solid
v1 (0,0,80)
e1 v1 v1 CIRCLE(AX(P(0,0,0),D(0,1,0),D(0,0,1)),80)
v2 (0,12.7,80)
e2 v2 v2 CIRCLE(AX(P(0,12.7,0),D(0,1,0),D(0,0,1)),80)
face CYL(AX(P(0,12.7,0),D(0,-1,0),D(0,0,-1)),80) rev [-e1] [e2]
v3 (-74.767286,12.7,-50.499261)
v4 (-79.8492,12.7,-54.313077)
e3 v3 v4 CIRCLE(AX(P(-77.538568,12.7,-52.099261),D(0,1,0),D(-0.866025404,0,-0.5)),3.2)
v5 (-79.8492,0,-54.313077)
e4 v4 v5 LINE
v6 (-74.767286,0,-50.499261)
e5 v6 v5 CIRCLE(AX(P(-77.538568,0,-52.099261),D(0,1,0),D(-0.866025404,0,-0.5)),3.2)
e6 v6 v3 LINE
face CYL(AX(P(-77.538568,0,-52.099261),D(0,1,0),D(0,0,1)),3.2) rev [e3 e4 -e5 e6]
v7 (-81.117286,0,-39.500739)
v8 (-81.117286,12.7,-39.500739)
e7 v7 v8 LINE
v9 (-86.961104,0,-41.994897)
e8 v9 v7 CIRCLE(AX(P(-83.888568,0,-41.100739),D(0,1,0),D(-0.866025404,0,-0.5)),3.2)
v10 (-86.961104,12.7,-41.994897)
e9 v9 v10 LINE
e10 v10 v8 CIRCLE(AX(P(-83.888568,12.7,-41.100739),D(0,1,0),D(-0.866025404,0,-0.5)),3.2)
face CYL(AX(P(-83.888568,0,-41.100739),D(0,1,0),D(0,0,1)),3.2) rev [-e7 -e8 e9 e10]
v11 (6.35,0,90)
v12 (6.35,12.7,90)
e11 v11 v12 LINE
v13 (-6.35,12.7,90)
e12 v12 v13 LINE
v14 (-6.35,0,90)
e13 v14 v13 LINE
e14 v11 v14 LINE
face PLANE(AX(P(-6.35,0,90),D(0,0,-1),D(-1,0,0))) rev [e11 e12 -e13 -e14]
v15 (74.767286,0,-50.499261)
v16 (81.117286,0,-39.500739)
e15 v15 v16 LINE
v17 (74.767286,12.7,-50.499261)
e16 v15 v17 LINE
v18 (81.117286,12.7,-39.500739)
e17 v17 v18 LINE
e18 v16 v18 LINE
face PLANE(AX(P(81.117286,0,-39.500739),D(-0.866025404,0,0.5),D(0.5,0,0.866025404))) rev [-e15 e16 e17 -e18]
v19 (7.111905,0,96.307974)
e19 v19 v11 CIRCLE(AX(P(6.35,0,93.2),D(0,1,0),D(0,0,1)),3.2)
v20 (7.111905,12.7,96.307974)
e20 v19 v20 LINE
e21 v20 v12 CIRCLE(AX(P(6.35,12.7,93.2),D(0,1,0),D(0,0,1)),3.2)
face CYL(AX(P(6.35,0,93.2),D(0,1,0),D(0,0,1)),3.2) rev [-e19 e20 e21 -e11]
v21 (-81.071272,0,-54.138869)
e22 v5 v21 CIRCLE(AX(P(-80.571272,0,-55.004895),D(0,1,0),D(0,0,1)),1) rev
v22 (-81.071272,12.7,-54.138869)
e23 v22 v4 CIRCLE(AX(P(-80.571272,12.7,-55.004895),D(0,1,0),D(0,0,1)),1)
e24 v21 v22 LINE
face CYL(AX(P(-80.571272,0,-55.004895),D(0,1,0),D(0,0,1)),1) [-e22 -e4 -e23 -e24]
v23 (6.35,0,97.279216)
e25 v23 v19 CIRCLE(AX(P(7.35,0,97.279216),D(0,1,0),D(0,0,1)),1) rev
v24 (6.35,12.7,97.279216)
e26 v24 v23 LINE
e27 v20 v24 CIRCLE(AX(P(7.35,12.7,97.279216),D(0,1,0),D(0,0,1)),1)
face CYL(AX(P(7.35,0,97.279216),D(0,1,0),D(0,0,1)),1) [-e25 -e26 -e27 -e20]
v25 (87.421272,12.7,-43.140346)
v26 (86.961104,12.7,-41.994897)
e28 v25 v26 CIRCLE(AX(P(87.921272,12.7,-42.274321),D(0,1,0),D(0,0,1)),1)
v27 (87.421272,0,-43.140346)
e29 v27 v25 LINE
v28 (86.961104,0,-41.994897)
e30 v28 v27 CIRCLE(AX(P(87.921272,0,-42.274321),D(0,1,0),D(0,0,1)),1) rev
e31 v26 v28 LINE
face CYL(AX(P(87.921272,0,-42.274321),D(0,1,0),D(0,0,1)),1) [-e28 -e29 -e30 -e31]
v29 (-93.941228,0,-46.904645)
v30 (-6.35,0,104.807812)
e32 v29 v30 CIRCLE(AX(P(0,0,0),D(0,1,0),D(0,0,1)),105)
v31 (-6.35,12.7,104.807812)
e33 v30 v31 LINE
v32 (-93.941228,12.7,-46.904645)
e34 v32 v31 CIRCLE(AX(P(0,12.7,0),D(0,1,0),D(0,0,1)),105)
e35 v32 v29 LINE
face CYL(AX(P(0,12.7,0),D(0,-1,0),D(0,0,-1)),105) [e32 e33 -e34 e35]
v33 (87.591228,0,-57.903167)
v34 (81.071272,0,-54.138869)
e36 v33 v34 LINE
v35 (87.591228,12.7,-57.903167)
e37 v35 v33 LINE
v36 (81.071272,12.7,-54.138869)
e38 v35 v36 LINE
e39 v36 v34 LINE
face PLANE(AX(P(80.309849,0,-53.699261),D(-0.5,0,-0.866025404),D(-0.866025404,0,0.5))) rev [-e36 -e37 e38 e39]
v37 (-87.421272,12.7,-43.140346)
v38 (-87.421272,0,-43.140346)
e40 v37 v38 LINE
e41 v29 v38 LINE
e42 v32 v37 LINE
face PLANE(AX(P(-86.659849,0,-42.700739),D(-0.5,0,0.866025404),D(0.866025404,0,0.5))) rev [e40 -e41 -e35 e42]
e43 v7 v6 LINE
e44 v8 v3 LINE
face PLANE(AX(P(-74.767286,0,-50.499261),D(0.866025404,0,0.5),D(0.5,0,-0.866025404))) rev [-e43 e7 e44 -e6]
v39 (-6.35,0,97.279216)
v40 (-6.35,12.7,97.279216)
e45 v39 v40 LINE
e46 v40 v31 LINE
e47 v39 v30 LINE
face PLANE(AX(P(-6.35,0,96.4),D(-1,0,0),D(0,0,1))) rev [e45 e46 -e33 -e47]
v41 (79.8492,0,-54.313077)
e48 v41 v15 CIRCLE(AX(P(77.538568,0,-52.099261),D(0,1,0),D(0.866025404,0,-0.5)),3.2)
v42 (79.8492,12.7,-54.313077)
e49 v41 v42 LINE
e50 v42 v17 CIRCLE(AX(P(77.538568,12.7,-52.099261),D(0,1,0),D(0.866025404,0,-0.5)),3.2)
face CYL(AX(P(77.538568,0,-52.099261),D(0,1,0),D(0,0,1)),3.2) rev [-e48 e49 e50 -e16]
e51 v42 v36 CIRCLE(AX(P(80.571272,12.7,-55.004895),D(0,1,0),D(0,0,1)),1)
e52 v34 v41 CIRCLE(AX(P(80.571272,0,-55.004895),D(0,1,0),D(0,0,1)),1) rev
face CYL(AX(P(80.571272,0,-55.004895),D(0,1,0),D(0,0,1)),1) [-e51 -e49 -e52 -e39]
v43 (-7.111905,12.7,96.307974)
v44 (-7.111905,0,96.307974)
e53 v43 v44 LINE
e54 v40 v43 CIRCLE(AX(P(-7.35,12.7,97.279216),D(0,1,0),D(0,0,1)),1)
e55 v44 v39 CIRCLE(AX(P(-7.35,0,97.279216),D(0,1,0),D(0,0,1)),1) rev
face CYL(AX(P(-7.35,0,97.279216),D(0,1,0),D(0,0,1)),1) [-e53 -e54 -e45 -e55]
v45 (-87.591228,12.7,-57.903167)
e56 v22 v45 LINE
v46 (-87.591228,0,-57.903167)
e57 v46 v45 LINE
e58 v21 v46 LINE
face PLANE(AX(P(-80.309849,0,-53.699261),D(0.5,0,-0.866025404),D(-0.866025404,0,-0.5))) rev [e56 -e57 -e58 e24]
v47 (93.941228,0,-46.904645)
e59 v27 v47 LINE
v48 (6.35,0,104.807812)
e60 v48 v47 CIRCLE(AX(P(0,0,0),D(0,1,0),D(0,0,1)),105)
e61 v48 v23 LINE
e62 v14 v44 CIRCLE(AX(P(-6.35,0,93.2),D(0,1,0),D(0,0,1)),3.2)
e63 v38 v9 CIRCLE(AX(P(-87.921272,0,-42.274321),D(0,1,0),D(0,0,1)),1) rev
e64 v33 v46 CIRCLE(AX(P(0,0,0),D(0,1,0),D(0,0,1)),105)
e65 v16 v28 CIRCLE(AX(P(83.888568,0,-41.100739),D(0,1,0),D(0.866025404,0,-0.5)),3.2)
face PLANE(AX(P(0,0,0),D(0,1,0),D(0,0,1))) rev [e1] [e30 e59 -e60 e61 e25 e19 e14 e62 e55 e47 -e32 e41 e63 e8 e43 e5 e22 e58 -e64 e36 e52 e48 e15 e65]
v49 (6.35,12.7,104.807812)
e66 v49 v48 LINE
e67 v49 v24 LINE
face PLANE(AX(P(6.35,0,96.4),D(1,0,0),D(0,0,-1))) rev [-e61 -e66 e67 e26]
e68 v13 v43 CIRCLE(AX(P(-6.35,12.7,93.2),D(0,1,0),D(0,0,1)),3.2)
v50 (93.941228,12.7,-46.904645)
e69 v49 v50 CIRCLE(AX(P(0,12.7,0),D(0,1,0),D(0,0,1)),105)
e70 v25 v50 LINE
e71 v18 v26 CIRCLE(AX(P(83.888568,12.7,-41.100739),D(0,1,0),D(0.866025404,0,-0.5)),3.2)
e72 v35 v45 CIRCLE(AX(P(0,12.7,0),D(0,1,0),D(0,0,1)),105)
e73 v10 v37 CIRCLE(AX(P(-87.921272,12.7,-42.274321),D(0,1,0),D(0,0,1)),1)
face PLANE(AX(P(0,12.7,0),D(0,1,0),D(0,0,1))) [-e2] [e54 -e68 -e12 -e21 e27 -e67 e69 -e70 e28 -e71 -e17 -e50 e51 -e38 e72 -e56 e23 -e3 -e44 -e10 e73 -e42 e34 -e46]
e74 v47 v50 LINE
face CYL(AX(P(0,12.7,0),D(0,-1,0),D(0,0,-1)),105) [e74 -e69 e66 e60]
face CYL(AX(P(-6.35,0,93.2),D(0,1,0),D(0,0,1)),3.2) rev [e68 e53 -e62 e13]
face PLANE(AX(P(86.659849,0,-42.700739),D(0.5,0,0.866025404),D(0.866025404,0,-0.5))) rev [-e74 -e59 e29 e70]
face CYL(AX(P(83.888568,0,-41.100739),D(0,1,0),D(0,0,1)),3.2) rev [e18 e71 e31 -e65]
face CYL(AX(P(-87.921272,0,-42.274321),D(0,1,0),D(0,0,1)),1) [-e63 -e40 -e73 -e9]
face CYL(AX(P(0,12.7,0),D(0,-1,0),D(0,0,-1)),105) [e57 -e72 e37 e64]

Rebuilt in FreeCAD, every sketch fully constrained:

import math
import FreeCAD as App
import Part
import Sketcher
from FreeCAD import Vector


def edges_at(feature, points):
    """Names of the edges that pass closest to the given points."""
    edges = feature.Shape.Edges
    near = lambda p: min(range(len(edges)), key=lambda i: edges[i].distToShape(Part.Vertex(*p))[0])
    return sorted({f"Edge{near(p) + 1}" for p in points})

doc = App.newDocument("Part")
body = doc.addObject("PartDesign::Body", "Body")

# Sketch on XZ plane
sketch1 = body.newObject("Sketcher::SketchObject", "Sketch")
sketch1.AttachmentSupport = (doc.getObject("XZ_Plane"), [""])
sketch1.MapMode = "FlatFace"
sketch1.addGeometry([
    Part.Circle(Vector(0, 0, 0), Vector(0, 0, 1), 105),
    Part.Circle(Vector(0, 0, 0), Vector(0, 0, 1), 80),
], False)
sketch1.addConstraint([
    Sketcher.Constraint("Coincident", 0, 3, -1, 1),
    Sketcher.Constraint("Coincident", 1, 3, -1, 1),
    Sketcher.Constraint("Diameter", 0, 210.0),
    Sketcher.Constraint("Diameter", 1, 160.0),
])
pad1 = body.newObject("PartDesign::Pad", "Pad")
pad1.Profile = sketch1
pad1.Length = 12.7
pad1.Reversed = True

# Sketch on XZ plane
sketch2 = body.newObject("Sketcher::SketchObject", "Sketch001")
sketch2.AttachmentSupport = (doc.getObject("XZ_Plane"), [""])
sketch2.MapMode = "FlatFace"
sketch2.AttachmentOffset = App.Placement(Vector(0, 0, -12.7), App.Rotation())
sketch2.addGeometry([
    Part.LineSegment(Vector(-6.3, 105, 0), Vector(6.3, 105, 0)),  # 0
    Part.LineSegment(Vector(6.3, 105, 0), Vector(6.3, 96.4, 0)),  # 1
    Part.ArcOfCircle(Part.Circle(Vector(6.3, 93.2, 0), Vector(0, 0, 1), 3.2), math.radians(-90), math.radians(90)),  # 2
    Part.LineSegment(Vector(6.3, 90, 0), Vector(-6.3, 90, 0)),  # 3
    Part.ArcOfCircle(Part.Circle(Vector(-6.3, 93.2, 0), Vector(0, 0, 1), 3.2), math.radians(90), math.radians(270)),  # 4
    Part.LineSegment(Vector(-6.3, 96.4, 0), Vector(-6.3, 105, 0)),  # 5
], False)
sketch2.addConstraint([
    Sketcher.Constraint("Coincident", 0, 2, 1, 1),
    Sketcher.Constraint("Coincident", 1, 2, 2, 2),
    Sketcher.Constraint("Tangent", 2, 1, 3, 1),
    Sketcher.Constraint("Tangent", 3, 2, 4, 2),
    Sketcher.Constraint("Coincident", 4, 1, 5, 1),
    Sketcher.Constraint("Coincident", 5, 2, 0, 1),
    Sketcher.Constraint("Horizontal", 0),
    Sketcher.Constraint("Vertical", 1),
    Sketcher.Constraint("Horizontal", 3),
    Sketcher.Constraint("Vertical", 5),
    Sketcher.Constraint("Equal", 2, 4),
    Sketcher.Constraint("Vertical", 2, 3, 0, 2),
    Sketcher.Constraint("Vertical", 3, 2, 4, 1),
    Sketcher.Constraint("Radius", 2, 3.2),
    Sketcher.Constraint("DistanceX", 0, 1, 0, 2, 12.7),
    Sketcher.Constraint("DistanceY", 1, 2, 1, 1, 8.6),
    Sketcher.Constraint("DistanceY", -1, 1, 0, 2, 105.0),
    Sketcher.Constraint("DistanceX", -1, 1, 2, 3, 6.35),
])
pocket1 = body.newObject("PartDesign::Pocket", "Pocket")
pocket1.Profile = sketch2
pocket1.Type = "ThroughAll"
pocket1.Reversed = True
doc.recompute()

fillet = body.newObject("PartDesign::Fillet", "Fillet")
fillet.Base = (pocket1, edges_at(pocket1, [(6.35, 6.35, 96.4), (-6.35, 6.35, 96.4)]))
fillet.Radius = 1
doc.recompute()

polarpattern = body.newObject("PartDesign::PolarPattern", "PolarPattern")
polarpattern.Originals = [pocket1]
polarpattern.Axis = (doc.getObject("Y_Axis"), [""])
polarpattern.Angle = 360
polarpattern.Occurrences = 3
body.Tip = polarpattern
doc.recompute()

fillet2 = body.newObject("PartDesign::Fillet", "Fillet001")
fillet2.Base = (polarpattern, edges_at(polarpattern, [
    (80.31, 6.35, -53.699),
    (86.66, 6.35, -42.701),
    (-86.66, 6.35, -42.701),
    (-80.31, 6.35, -53.699),
]))
fillet2.Radius = 1

doc.recompute()
